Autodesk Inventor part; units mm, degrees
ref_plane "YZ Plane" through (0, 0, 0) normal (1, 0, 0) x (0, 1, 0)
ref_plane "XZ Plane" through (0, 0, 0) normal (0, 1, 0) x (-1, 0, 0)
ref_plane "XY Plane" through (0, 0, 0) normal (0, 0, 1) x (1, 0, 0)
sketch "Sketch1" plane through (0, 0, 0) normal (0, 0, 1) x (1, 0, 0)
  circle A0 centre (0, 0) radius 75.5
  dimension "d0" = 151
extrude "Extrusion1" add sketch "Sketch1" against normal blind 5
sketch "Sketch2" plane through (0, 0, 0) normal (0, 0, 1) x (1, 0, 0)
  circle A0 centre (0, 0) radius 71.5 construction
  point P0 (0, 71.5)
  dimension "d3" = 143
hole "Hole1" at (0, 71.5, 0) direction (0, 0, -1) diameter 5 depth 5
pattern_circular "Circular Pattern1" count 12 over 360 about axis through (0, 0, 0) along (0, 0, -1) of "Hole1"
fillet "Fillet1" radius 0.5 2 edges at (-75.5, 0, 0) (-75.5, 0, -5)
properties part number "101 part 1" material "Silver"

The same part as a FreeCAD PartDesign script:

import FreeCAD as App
import Part
import Sketcher
Q = App.Units.Quantity


def edges_at(feature, points):
    """Names of the edges that pass closest to the given points."""
    edges = feature.Shape.Edges
    near = lambda p: min(range(len(edges)), key=lambda i: edges[i].distToShape(Part.Vertex(*p))[0])
    return sorted({f"Edge{near(p) + 1}" for p in points})

doc = App.newDocument("Part")
body = doc.addObject("PartDesign::Body", "Body")

sketch1 = doc.addObject("Sketcher::SketchObject", "Sketch")
body.addObject(sketch1)
sketch1.AttachmentSupport = (doc.XY_Plane, [""])
sketch1.MapMode = "FlatFace"
sketch1.addGeometry(Part.Circle(App.Vector(0, 0, 0), App.Vector(0, 0, 1), 76), False)
sketch1.addConstraint([
    Sketcher.Constraint("Coincident", 0, 3, -1, 1),
    Sketcher.Constraint("Diameter", 0, Q("151 mm")),
])
pad1 = doc.addObject("PartDesign::Pad", "Pad")
body.addObject(pad1)
pad1.Profile = sketch1
pad1.Length = 5
pad1.Reversed = True

sketch2 = doc.addObject("Sketcher::SketchObject", "Sketch001")
body.addObject(sketch2)
sketch2.AttachmentSupport = (doc.XY_Plane, [""])
sketch2.MapMode = "FlatFace"
sketch2.addGeometry(Part.Circle(App.Vector(0, 71.5, 0), App.Vector(0, 0, 1), 2.5), False)
sketch2.addConstraint([
    Sketcher.Constraint("PointOnObject", 0, 3, -2),
    Sketcher.Constraint("Diameter", 0, Q("5 mm")),
    Sketcher.Constraint("DistanceY", -1, 1, 0, 3, Q("71.5 mm")),
])
doc.recompute()
hole = doc.addObject("PartDesign::Hole", "Hole")
body.addObject(hole)
hole.Profile = sketch2
hole.ThreadType = "None"
hole.Diameter = 5
hole.DepthType = "Dimension"
hole.Depth = 5
hole.DrillPoint = "Flat"
doc.recompute()

polarpattern = doc.addObject("PartDesign::PolarPattern", "PolarPattern")
body.addObject(polarpattern)
polarpattern.Originals = [hole]
polarpattern.Axis = (doc.Z_Axis, [""])
polarpattern.Angle = 360
polarpattern.Occurrences = 12
body.Tip = polarpattern
doc.recompute()

fillet = doc.addObject("PartDesign::Fillet", "Fillet")
body.addObject(fillet)
fillet.Base = (polarpattern, edges_at(polarpattern, [(-75.5, 0, 0), (-75.5, 0, -5)]))
fillet.Radius = 0.5

doc.recompute()
